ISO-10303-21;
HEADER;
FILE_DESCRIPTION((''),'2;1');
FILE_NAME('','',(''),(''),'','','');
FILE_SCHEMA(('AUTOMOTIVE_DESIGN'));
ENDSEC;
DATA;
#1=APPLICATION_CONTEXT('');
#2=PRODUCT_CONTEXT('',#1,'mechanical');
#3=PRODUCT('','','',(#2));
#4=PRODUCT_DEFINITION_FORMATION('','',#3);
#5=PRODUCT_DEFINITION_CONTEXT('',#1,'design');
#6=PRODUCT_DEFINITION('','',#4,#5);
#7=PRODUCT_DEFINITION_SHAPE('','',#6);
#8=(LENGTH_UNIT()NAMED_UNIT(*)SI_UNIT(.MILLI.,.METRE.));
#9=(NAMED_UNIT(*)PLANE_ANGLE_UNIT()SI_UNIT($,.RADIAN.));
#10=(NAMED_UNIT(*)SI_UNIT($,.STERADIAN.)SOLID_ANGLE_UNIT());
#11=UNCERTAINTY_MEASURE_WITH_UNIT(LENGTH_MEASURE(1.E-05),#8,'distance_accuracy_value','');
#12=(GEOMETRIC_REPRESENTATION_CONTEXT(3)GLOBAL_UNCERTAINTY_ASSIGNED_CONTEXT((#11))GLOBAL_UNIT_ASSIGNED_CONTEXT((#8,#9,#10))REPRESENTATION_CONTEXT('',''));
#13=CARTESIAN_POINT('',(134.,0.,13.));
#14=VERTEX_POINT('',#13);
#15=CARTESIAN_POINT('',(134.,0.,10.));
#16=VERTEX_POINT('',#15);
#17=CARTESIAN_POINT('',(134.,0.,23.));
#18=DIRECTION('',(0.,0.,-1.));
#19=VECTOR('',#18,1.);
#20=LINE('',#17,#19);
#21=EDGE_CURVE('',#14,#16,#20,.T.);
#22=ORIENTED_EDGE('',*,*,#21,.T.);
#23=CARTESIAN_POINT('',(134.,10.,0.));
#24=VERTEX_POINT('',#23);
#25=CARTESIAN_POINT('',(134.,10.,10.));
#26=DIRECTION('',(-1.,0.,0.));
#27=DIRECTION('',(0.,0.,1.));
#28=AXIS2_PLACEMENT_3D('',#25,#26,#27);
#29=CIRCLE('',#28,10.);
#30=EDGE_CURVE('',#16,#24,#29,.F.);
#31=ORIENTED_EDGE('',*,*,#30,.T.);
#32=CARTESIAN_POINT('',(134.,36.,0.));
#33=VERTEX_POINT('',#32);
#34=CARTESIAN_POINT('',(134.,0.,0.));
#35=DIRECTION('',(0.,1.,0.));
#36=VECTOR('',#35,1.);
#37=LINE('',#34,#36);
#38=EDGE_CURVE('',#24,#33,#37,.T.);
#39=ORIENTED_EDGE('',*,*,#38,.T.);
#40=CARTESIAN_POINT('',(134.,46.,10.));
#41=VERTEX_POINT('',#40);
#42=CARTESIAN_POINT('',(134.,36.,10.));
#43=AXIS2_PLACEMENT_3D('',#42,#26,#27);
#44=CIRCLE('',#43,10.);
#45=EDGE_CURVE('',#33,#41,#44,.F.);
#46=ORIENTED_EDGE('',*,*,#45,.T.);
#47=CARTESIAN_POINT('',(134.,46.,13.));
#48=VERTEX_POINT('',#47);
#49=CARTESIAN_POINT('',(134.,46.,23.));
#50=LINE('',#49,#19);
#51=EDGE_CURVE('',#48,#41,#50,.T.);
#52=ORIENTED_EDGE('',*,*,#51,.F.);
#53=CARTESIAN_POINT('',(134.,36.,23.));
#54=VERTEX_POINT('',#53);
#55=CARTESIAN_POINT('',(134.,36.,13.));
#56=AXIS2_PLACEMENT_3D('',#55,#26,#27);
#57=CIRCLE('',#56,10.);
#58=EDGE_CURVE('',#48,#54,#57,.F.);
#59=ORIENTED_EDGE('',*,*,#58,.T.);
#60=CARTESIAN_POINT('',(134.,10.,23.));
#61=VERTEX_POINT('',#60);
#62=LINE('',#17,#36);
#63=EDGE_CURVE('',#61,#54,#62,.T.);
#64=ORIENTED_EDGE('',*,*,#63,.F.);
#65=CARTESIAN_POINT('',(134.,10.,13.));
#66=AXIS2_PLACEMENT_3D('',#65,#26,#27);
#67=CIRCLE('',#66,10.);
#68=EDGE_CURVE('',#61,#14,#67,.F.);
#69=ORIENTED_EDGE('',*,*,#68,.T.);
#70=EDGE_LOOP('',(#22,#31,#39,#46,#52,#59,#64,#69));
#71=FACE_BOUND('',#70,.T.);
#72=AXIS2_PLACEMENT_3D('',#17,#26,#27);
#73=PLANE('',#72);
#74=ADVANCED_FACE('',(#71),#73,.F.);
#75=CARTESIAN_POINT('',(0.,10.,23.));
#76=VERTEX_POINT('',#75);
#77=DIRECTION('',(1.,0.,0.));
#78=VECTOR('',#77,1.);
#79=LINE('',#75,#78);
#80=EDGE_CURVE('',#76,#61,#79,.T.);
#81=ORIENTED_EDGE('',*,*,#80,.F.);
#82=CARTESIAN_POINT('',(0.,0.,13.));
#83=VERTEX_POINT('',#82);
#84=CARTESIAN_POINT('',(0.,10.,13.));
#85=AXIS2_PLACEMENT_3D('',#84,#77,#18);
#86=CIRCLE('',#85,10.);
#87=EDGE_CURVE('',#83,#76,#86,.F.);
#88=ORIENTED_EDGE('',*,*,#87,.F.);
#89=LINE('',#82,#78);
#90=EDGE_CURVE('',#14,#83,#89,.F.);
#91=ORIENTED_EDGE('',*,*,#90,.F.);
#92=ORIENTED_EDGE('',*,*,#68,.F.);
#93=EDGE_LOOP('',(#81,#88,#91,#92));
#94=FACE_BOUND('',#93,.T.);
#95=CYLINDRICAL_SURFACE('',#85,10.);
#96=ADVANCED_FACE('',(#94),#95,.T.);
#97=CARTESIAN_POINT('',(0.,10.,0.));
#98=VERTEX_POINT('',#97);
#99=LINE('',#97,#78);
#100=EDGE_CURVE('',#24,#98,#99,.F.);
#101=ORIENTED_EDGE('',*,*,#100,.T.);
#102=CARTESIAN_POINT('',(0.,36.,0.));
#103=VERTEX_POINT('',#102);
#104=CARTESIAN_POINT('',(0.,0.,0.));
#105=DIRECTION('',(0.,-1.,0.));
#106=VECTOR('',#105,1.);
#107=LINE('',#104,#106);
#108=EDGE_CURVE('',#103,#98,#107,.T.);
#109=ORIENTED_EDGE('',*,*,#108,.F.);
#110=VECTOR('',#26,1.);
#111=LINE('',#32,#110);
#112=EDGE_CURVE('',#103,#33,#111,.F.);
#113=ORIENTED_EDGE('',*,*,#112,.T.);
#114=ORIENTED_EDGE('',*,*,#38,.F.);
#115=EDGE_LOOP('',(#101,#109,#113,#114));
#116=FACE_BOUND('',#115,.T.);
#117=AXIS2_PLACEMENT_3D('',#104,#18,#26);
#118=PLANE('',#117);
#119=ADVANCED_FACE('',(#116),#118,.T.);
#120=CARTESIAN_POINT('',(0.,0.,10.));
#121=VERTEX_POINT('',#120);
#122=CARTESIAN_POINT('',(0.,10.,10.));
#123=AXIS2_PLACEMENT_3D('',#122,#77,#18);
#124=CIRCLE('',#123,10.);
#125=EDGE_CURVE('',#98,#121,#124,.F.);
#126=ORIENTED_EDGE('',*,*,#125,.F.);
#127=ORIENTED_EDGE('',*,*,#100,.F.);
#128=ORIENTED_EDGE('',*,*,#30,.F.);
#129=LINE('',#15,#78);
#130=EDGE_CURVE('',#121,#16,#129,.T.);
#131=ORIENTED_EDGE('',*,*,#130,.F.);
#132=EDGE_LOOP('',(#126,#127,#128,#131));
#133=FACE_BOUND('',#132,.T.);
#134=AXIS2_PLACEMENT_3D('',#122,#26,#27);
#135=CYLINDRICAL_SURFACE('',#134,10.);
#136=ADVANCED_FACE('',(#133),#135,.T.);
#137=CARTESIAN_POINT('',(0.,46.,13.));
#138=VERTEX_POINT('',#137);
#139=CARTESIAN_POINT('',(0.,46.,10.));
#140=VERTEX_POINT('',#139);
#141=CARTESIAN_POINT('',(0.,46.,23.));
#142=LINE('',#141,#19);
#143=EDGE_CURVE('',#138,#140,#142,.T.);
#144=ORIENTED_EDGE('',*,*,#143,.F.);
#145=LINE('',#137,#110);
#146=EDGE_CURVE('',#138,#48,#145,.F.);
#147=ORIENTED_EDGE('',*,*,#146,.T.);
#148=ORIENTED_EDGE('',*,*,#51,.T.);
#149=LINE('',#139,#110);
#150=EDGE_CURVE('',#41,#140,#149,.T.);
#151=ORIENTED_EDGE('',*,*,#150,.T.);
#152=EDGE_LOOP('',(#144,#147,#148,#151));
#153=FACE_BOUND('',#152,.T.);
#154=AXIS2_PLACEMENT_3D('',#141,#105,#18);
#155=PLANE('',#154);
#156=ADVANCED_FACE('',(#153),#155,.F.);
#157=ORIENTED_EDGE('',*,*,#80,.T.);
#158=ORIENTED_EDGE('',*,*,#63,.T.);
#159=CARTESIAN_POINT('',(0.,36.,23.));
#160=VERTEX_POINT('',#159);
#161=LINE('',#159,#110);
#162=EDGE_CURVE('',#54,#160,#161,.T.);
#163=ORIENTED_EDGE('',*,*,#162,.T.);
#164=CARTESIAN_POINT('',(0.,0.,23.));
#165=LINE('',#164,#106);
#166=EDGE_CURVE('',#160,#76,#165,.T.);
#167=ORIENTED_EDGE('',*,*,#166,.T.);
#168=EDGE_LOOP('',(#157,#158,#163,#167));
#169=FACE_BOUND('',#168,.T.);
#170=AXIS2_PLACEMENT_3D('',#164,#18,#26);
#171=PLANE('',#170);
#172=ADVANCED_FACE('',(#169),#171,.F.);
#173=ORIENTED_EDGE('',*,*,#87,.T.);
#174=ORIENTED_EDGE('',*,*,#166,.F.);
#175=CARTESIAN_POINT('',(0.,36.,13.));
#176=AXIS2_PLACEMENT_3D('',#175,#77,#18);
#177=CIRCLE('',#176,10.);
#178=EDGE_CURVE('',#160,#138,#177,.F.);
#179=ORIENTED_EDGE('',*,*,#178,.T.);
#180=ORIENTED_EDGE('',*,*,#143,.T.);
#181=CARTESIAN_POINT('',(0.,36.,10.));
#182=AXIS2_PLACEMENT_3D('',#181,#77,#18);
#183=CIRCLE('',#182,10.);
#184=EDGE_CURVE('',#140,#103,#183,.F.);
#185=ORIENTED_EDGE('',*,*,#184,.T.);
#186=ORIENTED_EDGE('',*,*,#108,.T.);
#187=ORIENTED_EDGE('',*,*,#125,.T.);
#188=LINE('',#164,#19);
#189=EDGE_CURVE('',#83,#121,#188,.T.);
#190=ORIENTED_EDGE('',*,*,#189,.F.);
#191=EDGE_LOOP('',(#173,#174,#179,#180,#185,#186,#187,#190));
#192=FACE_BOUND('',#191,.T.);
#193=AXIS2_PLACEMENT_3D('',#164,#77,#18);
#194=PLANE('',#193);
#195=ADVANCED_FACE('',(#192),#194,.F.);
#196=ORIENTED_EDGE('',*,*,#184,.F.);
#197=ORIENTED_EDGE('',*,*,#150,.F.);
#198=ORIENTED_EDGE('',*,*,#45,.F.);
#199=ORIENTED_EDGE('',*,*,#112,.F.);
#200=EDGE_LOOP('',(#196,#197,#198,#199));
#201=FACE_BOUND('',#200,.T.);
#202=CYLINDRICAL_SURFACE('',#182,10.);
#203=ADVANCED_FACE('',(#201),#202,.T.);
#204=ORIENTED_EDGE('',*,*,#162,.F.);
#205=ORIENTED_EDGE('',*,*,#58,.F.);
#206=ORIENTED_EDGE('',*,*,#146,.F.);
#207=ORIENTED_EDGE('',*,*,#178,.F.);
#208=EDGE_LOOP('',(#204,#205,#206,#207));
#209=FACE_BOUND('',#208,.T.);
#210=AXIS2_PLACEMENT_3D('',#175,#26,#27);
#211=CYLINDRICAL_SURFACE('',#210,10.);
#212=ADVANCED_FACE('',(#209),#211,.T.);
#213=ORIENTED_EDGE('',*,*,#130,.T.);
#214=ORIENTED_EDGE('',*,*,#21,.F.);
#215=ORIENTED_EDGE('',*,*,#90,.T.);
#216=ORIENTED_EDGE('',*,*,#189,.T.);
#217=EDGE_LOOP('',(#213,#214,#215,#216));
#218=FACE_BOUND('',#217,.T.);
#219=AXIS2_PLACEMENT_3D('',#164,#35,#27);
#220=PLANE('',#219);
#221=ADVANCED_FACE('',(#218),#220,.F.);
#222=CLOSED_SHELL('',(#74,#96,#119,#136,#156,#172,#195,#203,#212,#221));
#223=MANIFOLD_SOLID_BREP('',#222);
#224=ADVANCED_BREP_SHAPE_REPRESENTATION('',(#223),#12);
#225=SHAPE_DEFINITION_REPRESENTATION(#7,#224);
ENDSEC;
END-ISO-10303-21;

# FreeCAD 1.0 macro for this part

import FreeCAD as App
import Part
import Sketcher

V = App.Vector
Q = App.Units.Quantity


def edges_at(feature, points):
    """Names of the edges that pass closest to the given points."""
    edges = feature.Shape.Edges
    near = lambda p: min(range(len(edges)), key=lambda i: edges[i].distToShape(Part.Vertex(*p))[0])
    return sorted({f"Edge{near(p) + 1}" for p in points})


def add_polygon(sketch, points):
    """Adds a closed chain of lines whose ends are joined by coincident constraints."""
    first, n = sketch.GeometryCount, len(points)
    for a, b in zip(points, points[1:] + points[:1]):
        sketch.addGeometry(Part.LineSegment(App.Vector(*a, 0), App.Vector(*b, 0)), False)
    for i in range(n):
        sketch.addConstraint(Sketcher.Constraint("Coincident", first + i, 2, first + (i + 1) % n, 1))

doc = App.newDocument("Part")
body = doc.addObject("PartDesign::Body", "Body")

sketch1 = doc.addObject("Sketcher::SketchObject", "Sketch")
body.addObject(sketch1)
sketch1.AttachmentSupport = (doc.XY_Plane, [""])
sketch1.MapMode = "FlatFace"
add_polygon(sketch1, [(0, 46), (0, 0), (134, 0), (134, 46)])
sketch1.addConstraint([
    Sketcher.Constraint("Vertical", 0),
    Sketcher.Constraint("Horizontal", 1),
    Sketcher.Constraint("Vertical", 2),
    Sketcher.Constraint("Horizontal", 3),
    Sketcher.Constraint("Coincident", 0, 2, -1, 1),
    Sketcher.Constraint("DistanceX", 1, 1, 1, 2, Q("134 mm")),
    Sketcher.Constraint("DistanceY", 0, 2, 0, 1, Q("46 mm")),
])
pad1 = doc.addObject("PartDesign::Pad", "Pad")
body.addObject(pad1)
pad1.Profile = sketch1
pad1.Length = 23
doc.recompute()

fillet = doc.addObject("PartDesign::Fillet", "Fillet")
body.addObject(fillet)
fillet.Base = (pad1, edges_at(pad1, [
    (67, 46, 23),
    (67, 46, 0),
    (67, 0, 0),
    (67, 0, 23),
]))
fillet.Radius = 10

doc.recompute()
